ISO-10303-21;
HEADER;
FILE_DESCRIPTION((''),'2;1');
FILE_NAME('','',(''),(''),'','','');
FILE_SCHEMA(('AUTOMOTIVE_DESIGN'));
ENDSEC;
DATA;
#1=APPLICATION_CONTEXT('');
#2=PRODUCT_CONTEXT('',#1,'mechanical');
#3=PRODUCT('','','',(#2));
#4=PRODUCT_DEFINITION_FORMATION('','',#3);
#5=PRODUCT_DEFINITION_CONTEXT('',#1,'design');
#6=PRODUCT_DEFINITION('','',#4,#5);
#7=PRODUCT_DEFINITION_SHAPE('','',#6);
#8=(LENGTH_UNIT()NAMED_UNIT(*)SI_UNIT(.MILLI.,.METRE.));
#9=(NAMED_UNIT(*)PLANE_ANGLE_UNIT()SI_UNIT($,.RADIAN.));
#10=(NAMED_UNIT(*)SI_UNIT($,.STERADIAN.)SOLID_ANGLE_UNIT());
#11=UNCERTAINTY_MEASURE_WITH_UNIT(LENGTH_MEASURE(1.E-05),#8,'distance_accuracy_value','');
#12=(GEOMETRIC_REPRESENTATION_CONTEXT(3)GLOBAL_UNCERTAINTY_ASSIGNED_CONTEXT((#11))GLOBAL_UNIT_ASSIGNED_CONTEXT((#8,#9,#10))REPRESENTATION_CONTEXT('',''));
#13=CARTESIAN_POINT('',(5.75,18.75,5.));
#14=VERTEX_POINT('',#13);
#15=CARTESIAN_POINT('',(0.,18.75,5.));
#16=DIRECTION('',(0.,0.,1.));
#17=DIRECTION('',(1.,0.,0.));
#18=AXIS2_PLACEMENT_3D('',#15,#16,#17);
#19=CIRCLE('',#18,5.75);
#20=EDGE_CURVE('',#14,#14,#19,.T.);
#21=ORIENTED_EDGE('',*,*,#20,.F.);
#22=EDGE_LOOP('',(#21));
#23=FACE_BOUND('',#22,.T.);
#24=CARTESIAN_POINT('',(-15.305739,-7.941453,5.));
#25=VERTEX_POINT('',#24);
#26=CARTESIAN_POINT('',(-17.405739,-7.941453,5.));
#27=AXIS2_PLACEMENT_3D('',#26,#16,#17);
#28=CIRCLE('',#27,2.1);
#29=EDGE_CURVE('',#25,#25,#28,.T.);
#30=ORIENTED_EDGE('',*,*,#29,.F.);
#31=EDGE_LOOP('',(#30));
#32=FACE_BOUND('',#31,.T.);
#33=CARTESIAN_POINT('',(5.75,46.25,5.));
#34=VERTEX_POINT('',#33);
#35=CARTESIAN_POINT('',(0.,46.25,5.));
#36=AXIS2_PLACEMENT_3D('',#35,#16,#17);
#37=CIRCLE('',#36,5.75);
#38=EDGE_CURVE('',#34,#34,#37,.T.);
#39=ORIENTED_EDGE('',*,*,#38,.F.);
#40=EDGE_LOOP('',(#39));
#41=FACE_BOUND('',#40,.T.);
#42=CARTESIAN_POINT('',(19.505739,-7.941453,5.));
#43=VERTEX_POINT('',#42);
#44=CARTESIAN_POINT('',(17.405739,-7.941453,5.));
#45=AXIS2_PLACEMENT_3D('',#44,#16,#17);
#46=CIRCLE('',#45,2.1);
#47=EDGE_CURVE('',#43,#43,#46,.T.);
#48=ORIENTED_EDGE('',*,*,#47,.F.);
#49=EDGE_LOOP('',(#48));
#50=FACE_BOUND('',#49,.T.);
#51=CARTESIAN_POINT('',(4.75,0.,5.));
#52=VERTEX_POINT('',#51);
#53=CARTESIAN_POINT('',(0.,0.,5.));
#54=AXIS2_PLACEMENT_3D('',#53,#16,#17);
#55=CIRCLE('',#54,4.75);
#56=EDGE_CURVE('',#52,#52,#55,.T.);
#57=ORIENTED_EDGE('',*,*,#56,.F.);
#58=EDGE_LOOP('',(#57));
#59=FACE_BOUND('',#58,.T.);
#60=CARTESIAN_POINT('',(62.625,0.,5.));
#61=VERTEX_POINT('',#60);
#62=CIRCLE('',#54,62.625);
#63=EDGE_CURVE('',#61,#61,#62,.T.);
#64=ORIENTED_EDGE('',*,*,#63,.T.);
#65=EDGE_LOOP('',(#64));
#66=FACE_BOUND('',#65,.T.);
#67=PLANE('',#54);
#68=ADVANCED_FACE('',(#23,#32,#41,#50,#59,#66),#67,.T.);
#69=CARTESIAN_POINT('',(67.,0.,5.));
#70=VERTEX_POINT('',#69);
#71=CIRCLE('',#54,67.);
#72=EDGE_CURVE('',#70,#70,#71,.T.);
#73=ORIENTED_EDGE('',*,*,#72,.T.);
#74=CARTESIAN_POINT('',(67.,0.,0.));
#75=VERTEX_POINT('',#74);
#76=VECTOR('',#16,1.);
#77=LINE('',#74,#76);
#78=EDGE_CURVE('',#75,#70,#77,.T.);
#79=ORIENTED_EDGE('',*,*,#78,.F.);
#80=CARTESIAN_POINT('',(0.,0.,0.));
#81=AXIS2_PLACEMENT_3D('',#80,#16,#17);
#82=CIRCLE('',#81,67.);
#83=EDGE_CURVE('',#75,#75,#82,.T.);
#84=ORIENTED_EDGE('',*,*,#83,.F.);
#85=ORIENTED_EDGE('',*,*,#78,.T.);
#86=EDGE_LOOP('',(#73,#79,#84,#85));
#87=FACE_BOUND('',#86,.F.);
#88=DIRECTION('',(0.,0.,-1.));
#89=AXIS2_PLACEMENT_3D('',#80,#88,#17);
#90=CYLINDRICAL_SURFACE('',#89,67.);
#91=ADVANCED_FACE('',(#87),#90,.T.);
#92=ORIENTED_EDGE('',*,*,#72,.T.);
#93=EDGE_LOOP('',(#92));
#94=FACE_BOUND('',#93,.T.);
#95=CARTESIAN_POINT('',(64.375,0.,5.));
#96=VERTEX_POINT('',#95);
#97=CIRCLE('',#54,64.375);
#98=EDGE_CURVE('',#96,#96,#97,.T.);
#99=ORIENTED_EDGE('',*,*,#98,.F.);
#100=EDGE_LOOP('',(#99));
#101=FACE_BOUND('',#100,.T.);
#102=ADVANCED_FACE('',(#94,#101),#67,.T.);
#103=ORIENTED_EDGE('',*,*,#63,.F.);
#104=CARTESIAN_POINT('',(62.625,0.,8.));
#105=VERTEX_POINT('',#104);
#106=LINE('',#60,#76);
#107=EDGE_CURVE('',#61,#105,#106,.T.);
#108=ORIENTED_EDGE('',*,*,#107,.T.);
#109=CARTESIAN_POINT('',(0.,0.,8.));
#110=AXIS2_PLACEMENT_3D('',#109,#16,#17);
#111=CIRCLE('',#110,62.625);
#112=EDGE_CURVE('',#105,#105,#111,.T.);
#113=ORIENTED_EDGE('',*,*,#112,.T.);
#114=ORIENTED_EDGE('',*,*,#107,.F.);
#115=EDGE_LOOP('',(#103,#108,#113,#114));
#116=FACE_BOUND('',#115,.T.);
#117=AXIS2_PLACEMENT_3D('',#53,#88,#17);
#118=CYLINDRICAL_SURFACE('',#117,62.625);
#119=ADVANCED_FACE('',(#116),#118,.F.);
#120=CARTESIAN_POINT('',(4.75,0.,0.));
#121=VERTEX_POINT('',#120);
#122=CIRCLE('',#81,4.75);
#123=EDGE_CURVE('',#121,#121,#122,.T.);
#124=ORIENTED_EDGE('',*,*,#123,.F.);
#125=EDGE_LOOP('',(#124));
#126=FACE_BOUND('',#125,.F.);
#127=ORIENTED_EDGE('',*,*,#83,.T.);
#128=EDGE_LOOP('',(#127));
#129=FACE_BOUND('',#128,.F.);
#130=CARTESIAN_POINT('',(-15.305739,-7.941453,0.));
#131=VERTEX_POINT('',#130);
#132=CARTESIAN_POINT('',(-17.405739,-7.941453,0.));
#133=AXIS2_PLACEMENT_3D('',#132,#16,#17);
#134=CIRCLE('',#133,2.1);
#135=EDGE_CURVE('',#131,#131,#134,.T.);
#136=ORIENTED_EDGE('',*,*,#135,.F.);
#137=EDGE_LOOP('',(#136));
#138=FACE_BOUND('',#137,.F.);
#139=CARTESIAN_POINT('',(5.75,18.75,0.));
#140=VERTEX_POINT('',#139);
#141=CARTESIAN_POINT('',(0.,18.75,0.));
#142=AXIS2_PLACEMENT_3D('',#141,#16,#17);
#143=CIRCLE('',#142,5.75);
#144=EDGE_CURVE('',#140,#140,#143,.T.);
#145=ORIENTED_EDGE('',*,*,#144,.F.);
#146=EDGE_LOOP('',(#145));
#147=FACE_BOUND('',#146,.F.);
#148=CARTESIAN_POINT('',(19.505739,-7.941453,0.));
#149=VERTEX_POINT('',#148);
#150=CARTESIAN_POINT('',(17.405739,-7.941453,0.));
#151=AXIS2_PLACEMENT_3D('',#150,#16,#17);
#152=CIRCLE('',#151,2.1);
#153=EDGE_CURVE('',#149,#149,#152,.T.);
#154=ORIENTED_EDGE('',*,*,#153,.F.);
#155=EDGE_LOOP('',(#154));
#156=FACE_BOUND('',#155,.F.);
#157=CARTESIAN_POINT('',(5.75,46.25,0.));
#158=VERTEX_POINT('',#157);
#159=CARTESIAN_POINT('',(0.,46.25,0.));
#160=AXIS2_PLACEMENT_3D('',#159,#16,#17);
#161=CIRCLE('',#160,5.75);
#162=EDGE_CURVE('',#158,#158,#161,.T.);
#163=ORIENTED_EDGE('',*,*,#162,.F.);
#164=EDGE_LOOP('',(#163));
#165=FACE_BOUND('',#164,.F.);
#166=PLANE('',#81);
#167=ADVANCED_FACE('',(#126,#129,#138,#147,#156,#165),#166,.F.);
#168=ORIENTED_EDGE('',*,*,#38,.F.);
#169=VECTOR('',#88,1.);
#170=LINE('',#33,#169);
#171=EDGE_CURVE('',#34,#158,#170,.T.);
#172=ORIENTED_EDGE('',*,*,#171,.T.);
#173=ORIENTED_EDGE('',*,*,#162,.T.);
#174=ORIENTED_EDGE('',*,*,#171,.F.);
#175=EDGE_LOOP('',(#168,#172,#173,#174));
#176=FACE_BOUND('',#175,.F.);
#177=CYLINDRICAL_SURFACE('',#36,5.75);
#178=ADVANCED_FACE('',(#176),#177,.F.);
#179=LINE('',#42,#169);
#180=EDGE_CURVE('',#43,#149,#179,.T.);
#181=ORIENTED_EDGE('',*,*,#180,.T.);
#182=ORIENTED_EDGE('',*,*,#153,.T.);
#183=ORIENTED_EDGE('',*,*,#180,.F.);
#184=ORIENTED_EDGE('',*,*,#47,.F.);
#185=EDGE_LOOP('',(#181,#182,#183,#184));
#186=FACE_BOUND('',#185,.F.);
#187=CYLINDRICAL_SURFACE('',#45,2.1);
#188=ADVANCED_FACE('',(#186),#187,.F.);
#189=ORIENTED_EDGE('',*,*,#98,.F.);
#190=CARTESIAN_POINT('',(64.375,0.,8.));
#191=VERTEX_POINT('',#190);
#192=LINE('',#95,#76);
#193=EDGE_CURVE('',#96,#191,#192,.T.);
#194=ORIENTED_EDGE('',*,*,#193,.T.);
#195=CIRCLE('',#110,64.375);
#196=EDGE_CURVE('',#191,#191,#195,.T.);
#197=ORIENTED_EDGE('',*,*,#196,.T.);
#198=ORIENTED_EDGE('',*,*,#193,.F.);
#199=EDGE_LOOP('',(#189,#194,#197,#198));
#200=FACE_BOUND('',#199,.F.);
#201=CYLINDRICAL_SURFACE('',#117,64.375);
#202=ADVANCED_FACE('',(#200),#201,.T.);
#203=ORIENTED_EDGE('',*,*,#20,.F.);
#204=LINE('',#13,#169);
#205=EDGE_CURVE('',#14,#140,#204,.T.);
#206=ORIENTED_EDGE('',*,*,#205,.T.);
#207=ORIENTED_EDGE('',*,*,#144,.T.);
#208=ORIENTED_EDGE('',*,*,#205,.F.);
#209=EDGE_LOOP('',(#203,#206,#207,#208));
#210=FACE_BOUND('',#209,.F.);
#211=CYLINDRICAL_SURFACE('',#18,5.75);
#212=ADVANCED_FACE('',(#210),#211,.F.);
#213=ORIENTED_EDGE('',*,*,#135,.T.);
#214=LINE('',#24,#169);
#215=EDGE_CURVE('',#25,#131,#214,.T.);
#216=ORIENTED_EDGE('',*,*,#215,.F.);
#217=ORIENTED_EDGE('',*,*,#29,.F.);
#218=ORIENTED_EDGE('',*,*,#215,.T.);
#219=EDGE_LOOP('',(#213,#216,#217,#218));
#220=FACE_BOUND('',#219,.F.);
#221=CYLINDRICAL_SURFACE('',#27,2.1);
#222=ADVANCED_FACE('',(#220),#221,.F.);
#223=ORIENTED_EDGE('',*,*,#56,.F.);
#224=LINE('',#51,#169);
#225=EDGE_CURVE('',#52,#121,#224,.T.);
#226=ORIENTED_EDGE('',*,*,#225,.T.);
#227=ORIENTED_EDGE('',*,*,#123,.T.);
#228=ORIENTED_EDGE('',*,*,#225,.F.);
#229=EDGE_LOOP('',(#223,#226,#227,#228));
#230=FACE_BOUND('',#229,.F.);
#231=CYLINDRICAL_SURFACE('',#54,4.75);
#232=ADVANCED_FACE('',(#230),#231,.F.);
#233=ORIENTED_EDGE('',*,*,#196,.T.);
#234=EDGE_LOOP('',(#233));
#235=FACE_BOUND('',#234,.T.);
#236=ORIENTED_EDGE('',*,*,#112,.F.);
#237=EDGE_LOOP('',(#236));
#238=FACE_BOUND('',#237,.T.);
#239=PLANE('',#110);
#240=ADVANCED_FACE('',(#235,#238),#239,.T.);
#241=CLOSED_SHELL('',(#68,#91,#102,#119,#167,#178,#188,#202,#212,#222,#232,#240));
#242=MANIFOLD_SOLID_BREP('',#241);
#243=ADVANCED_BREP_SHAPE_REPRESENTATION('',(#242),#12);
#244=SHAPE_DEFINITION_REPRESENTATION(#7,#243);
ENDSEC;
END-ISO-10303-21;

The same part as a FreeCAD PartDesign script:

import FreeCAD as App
import Part
import Sketcher
Q = App.Units.Quantity

doc = App.newDocument("Part")
body = doc.addObject("PartDesign::Body", "Body")

sketch1 = body.newObject("Sketcher::SketchObject", "Sketch")
sketch1.AttachmentSupport = (doc.getObject("XY_Plane"), [""])
sketch1.MapMode = "FlatFace"
sketch1.addGeometry(Part.Circle(App.Vector(0, 0, 0), App.Vector(0, 0, 1), 67), False)
sketch1.addConstraint([
    Sketcher.Constraint("Coincident", 0, 3, -1, 1),
    Sketcher.Constraint("Diameter", 0, Q("134 mm")),
])
pad1 = body.newObject("PartDesign::Pad", "Pad")
pad1.Profile = sketch1
pad1.Length = 5

sketch2 = body.newObject("Sketcher::SketchObject", "Sketch001")
sketch2.AttachmentSupport = (doc.getObject("XY_Plane"), [""])
sketch2.MapMode = "FlatFace"
sketch2.AttachmentOffset = App.Placement(App.Vector(0, 0, 5), App.Rotation())
sketch2.addGeometry([
    Part.Circle(App.Vector(0, 0, 0), App.Vector(0, 0, 1), 64.375),
    Part.Circle(App.Vector(0, 0, 0), App.Vector(0, 0, 1), 62.625),
], False)
sketch2.addConstraint([
    Sketcher.Constraint("Coincident", 0, 3, -1, 1),
    Sketcher.Constraint("Coincident", 1, 3, -1, 1),
    Sketcher.Constraint("Diameter", 0, Q("128.75 mm")),
    Sketcher.Constraint("Diameter", 1, Q("125.25 mm")),
])
pad2 = body.newObject("PartDesign::Pad", "Pad001")
pad2.Profile = sketch2
pad2.Length = 3

sketch3 = body.newObject("Sketcher::SketchObject", "Sketch002")
sketch3.AttachmentSupport = (doc.getObject("XY_Plane"), [""])
sketch3.MapMode = "FlatFace"
sketch3.AttachmentOffset = App.Placement(App.Vector(0, 0, 5), App.Rotation())
sketch3.addGeometry([
    Part.Circle(App.Vector(17.405739, -7.941453, 0), App.Vector(0, 0, 1), 2.1),
    Part.Circle(App.Vector(-17.405739, -7.941453, 0), App.Vector(0, 0, 1), 2.1),
], False)
sketch3.addConstraint([
    Sketcher.Constraint("Equal", 0, 1),
    Sketcher.Constraint("Symmetric", 0, 3, 1, 3, -2),
    Sketcher.Constraint("Diameter", 0, Q("4.2 mm")),
    Sketcher.Constraint("DistanceX", -1, 1, 0, 3, Q("17.405739 mm")),
    Sketcher.Constraint("DistanceY", 0, 3, -1, 1, Q("7.941453 mm")),
])
pocket1 = body.newObject("PartDesign::Pocket", "Pocket")
pocket1.Profile = sketch3
pocket1.Type = "ThroughAll"

sketch4 = body.newObject("Sketcher::SketchObject", "Sketch003")
sketch4.AttachmentSupport = (doc.getObject("XY_Plane"), [""])
sketch4.MapMode = "FlatFace"
sketch4.AttachmentOffset = App.Placement(App.Vector(0, 0, 5), App.Rotation())
sketch4.addGeometry([
    Part.Circle(App.Vector(0, 46.25, 0), App.Vector(0, 0, 1), 5.75),
    Part.Circle(App.Vector(0, 18.75, 0), App.Vector(0, 0, 1), 5.75),
    Part.Circle(App.Vector(0, 0, 0), App.Vector(0, 0, 1), 4.75),
], False)
sketch4.addConstraint([
    Sketcher.Constraint("Coincident", 2, 3, -1, 1),
    Sketcher.Constraint("Equal", 0, 1),
    Sketcher.Constraint("PointOnObject", 0, 3, -2),
    Sketcher.Constraint("PointOnObject", 1, 3, -2),
    Sketcher.Constraint("Diameter", 0, Q("11.5 mm")),
    Sketcher.Constraint("Diameter", 2, Q("9.5 mm")),
    Sketcher.Constraint("DistanceY", 1, 3, 0, 3, Q("27.5 mm")),
    Sketcher.Constraint("DistanceY", -1, 1, 0, 3, Q("46.25 mm")),
])
pocket2 = body.newObject("PartDesign::Pocket", "Pocket001")
pocket2.Profile = sketch4
pocket2.Type = "ThroughAll"

sketch5 = body.newObject("Sketcher::SketchObject", "Sketch004")
sketch5.AttachmentSupport = (doc.getObject("XY_Plane"), [""])
sketch5.MapMode = "FlatFace"
sketch5.addGeometry([
    Part.Circle(App.Vector(0, 46.25, 0), App.Vector(0, 0, 1), 6.75),
    Part.Circle(App.Vector(0, 18.75, 0), App.Vector(0, 0, 1), 6.75),
    Part.Circle(App.Vector(0, 0, 0), App.Vector(0, 0, 1), 5.75),
], False)
sketch5.addConstraint([
    Sketcher.Constraint("Coincident", 2, 3, -1, 1),
    Sketcher.Constraint("Equal", 0, 1),
    Sketcher.Constraint("PointOnObject", 0, 3, -2),
    Sketcher.Constraint("PointOnObject", 1, 3, -2),
    Sketcher.Constraint("Diameter", 0, Q("13.5 mm")),
    Sketcher.Constraint("Diameter", 2, Q("11.5 mm")),
    Sketcher.Constraint("DistanceY", 1, 3, 0, 3, Q("27.5 mm")),
    Sketcher.Constraint("DistanceY", -1, 1, 0, 3, Q("46.25 mm")),
])
pocket3 = body.newObject("PartDesign::Pocket", "Pocket002")
pocket3.Profile = sketch5
pocket3.Length = 0.5

sketch6 = body.newObject("Sketcher::SketchObject", "Sketch005")
sketch6.AttachmentSupport = (doc.getObject("XY_Plane"), [""])
sketch6.MapMode = "FlatFace"
sketch6.addGeometry(Part.Circle(App.Vector(0, 46.25, 0), App.Vector(0, 0, 1), 6.75), False)
sketch6.addConstraint([
    Sketcher.Constraint("PointOnObject", 0, 3, -2),
    Sketcher.Constraint("Diameter", 0, Q("13.5 mm")),
    Sketcher.Constraint("DistanceY", -1, 1, 0, 3, Q("46.25 mm")),
])
pocket4 = body.newObject("PartDesign::Pocket", "Pocket003")
pocket4.Profile = sketch6
pocket4.Length = 0.5

doc.recompute()
